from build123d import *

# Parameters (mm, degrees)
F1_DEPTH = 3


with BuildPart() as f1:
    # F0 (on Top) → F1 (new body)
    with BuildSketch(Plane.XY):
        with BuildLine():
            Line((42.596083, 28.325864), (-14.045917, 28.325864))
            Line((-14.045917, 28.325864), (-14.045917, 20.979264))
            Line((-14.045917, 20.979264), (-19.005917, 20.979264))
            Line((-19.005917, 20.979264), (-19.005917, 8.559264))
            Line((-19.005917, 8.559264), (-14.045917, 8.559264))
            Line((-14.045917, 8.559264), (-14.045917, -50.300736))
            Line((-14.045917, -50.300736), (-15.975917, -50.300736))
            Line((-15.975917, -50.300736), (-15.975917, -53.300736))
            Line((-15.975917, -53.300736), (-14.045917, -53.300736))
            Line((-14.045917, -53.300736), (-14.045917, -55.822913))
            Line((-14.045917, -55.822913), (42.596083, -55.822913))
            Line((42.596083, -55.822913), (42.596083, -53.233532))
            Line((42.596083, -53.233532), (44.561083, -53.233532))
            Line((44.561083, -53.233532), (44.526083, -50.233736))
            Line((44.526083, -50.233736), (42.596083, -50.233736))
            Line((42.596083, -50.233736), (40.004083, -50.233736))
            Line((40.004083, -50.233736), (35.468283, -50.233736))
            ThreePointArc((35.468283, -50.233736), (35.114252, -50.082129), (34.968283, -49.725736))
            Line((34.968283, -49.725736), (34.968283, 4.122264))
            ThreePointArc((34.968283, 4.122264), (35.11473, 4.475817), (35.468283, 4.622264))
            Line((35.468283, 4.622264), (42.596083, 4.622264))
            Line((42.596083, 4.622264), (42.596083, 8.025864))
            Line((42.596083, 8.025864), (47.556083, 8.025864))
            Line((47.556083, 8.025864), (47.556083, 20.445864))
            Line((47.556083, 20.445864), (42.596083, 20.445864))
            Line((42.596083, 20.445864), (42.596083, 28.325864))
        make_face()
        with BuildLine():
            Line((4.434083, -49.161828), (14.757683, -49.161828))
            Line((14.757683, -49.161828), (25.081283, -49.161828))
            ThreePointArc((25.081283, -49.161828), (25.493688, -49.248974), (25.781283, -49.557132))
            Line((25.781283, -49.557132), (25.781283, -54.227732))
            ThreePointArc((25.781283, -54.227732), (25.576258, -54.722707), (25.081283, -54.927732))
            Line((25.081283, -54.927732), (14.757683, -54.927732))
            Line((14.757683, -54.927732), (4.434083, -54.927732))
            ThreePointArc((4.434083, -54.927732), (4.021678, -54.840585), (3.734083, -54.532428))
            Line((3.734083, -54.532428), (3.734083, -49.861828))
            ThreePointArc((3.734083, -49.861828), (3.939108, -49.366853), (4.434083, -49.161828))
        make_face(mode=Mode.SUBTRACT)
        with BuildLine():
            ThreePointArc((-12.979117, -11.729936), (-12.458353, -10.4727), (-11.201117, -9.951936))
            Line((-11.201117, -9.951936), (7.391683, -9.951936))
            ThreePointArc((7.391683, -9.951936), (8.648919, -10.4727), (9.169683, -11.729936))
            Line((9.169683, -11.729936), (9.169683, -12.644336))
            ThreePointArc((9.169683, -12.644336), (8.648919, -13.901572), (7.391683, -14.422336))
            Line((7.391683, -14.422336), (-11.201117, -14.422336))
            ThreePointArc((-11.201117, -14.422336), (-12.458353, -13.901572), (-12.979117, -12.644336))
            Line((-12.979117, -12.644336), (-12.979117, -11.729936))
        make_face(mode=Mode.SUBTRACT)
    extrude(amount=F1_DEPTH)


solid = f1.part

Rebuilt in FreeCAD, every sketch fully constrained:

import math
import FreeCAD as App
import Part
import Sketcher

V = App.Vector
Q = App.Units.Quantity

doc = App.newDocument("Part")
body = doc.addObject("PartDesign::Body", "Body")

sketch1 = doc.addObject("Sketcher::SketchObject", "Sketch")
body.addObject(sketch1)
sketch1.AttachmentSupport = (doc.XY_Plane, [""])
sketch1.MapMode = "FlatFace"
sketch1.addGeometry([
    Part.LineSegment(V(42.6, 28.3, 0), V(-14, 28.3, 0)),
    Part.LineSegment(V(-14, 28.3, 0), V(-14, 21, 0)),
    Part.LineSegment(V(-14, 21, 0), V(-19, 21, 0)),
    Part.LineSegment(V(-19, 21, 0), V(-19, 8.6, 0)),
    Part.LineSegment(V(-19, 8.6, 0), V(-14, 8.6, 0)),
    Part.LineSegment(V(-14, 8.6, 0), V(-14, -50.3, 0)),
    Part.LineSegment(V(-14, -50.3, 0), V(-16, -50.3, 0)),
    Part.LineSegment(V(-16, -50.3, 0), V(-16, -53.3, 0)),
    Part.LineSegment(V(-16, -53.3, 0), V(-14, -53.3, 0)),
    Part.LineSegment(V(-14, -53.3, 0), V(-14, -55.8, 0)),
    Part.LineSegment(V(-14, -55.8, 0), V(42.6, -55.8, 0)),
    Part.LineSegment(V(42.6, -55.8, 0), V(42.6, -53.2, 0)),
    Part.LineSegment(V(42.6, -53.2, 0), V(44.6, -53.2, 0)),
    Part.LineSegment(V(44.6, -53.2, 0), V(44.5, -50.2, 0)),
    Part.LineSegment(V(44.5, -50.2, 0), V(35.5, -50.2, 0)),
    Part.ArcOfCircle(Part.Circle(V(35.5, -49.7, 0), V(0, 0, 1), 0.5), math.radians(-180), math.radians(-91)),
    Part.LineSegment(V(35, -49.7, 0), V(35, 4.1, 0)),
    Part.ArcOfCircle(Part.Circle(V(35.5, 4.1, 0), V(0, 0, 1), 0.5), math.radians(90), math.radians(180)),
    Part.LineSegment(V(35.5, 4.6, 0), V(42.6, 4.6, 0)),
    Part.LineSegment(V(42.6, 4.6, 0), V(42.6, 8, 0)),
    Part.LineSegment(V(42.6, 8, 0), V(47.6, 8, 0)),
    Part.LineSegment(V(47.6, 8, 0), V(47.6, 20.4, 0)),
    Part.LineSegment(V(47.6, 20.4, 0), V(42.6, 20.4, 0)),
    Part.LineSegment(V(42.6, 20.4, 0), V(42.6, 28.3, 0)),
    Part.ArcOfCircle(Part.Circle(V(4.4, -49.9, 0), V(0, 0, 1), 0.7), math.radians(90), math.radians(180)),
    Part.LineSegment(V(4.4, -49.2, 0), V(25.1, -49.2, 0)),
    Part.ArcOfCircle(Part.Circle(V(25.1, -49.9, 0), V(0, 0, 1), 0.7), math.radians(26), math.radians(96)),
    Part.LineSegment(V(25.8, -49.6, 0), V(25.8, -54.2, 0)),
    Part.ArcOfCircle(Part.Circle(V(25.1, -54.2, 0), V(0, 0, 1), 0.7), math.radians(-90), math.radians(0)),
    Part.LineSegment(V(25.1, -54.9, 0), V(4.4, -54.9, 0)),
    Part.ArcOfCircle(Part.Circle(V(4.4, -54.2, 0), V(0, 0, 1), 0.7), math.radians(-154), math.radians(-84)),
    Part.LineSegment(V(3.7, -54.5, 0), V(3.7, -49.9, 0)),
    Part.LineSegment(V(-13, -12.6, 0), V(-13, -11.7, 0)),
    Part.ArcOfCircle(Part.Circle(V(-11.2, -11.7, 0), V(0, 0, 1), 1.8), math.radians(90), math.radians(180)),
    Part.LineSegment(V(-11.2, -10, 0), V(7.4, -10, 0)),
    Part.ArcOfCircle(Part.Circle(V(7.4, -11.7, 0), V(0, 0, 1), 1.8), math.radians(0), math.radians(90)),
    Part.LineSegment(V(9.2, -11.7, 0), V(9.2, -12.6, 0)),
    Part.ArcOfCircle(Part.Circle(V(7.4, -12.6, 0), V(0, 0, 1), 1.8), math.radians(-90), math.radians(0)),
    Part.LineSegment(V(7.4, -14.4, 0), V(-11.2, -14.4, 0)),
    Part.ArcOfCircle(Part.Circle(V(-11.2, -12.6, 0), V(0, 0, 1), 1.8), math.radians(180), math.radians(270)),
], False)
sketch1.addConstraint([
    Sketcher.Constraint("Coincident", 0, 2, 1, 1),
    Sketcher.Constraint("Coincident", 1, 2, 2, 1),
    Sketcher.Constraint("Coincident", 2, 2, 3, 1),
    Sketcher.Constraint("Coincident", 3, 2, 4, 1),
    Sketcher.Constraint("Coincident", 4, 2, 5, 1),
    Sketcher.Constraint("Coincident", 5, 2, 6, 1),
    Sketcher.Constraint("Coincident", 6, 2, 7, 1),
    Sketcher.Constraint("Coincident", 7, 2, 8, 1),
    Sketcher.Constraint("Coincident", 8, 2, 9, 1),
    Sketcher.Constraint("Coincident", 9, 2, 10, 1),
    Sketcher.Constraint("Coincident", 10, 2, 11, 1),
    Sketcher.Constraint("Coincident", 11, 2, 12, 1),
    Sketcher.Constraint("Coincident", 12, 2, 13, 1),
    Sketcher.Constraint("Coincident", 13, 2, 14, 1),
    Sketcher.Constraint("Coincident", 14, 2, 15, 2),
    Sketcher.Constraint("Tangent", 15, 1, 16, 1),
    Sketcher.Constraint("Coincident", 16, 2, 17, 2),
    Sketcher.Constraint("Coincident", 17, 1, 18, 1),
    Sketcher.Constraint("Coincident", 18, 2, 19, 1),
    Sketcher.Constraint("Coincident", 19, 2, 20, 1),
    Sketcher.Constraint("Coincident", 20, 2, 21, 1),
    Sketcher.Constraint("Coincident", 21, 2, 22, 1),
    Sketcher.Constraint("Coincident", 22, 2, 23, 1),
    Sketcher.Constraint("Coincident", 23, 2, 0, 1),
    Sketcher.Constraint("Tangent", 24, 1, 25, 1),
    Sketcher.Constraint("Coincident", 25, 2, 26, 2),
    Sketcher.Constraint("Coincident", 26, 1, 27, 1),
    Sketcher.Constraint("Tangent", 27, 2, 28, 2),
    Sketcher.Constraint("Tangent", 28, 1, 29, 1),
    Sketcher.Constraint("Coincident", 29, 2, 30, 2),
    Sketcher.Constraint("Coincident", 30, 1, 31, 1),
    Sketcher.Constraint("Tangent", 31, 2, 24, 2),
    Sketcher.Constraint("Tangent", 32, 2, 33, 2),
    Sketcher.Constraint("Tangent", 33, 1, 34, 1),
    Sketcher.Constraint("Tangent", 34, 2, 35, 2),
    Sketcher.Constraint("Tangent", 35, 1, 36, 1),
    Sketcher.Constraint("Tangent", 36, 2, 37, 2),
    Sketcher.Constraint("Tangent", 37, 1, 38, 1),
    Sketcher.Constraint("Tangent", 38, 2, 39, 2),
    Sketcher.Constraint("Tangent", 39, 1, 32, 1),
    Sketcher.Constraint("Horizontal", 0),
    Sketcher.Constraint("Vertical", 1),
    Sketcher.Constraint("Horizontal", 2),
    Sketcher.Constraint("Vertical", 3),
    Sketcher.Constraint("Horizontal", 4),
    Sketcher.Constraint("Vertical", 5),
    Sketcher.Constraint("Horizontal", 6),
    Sketcher.Constraint("Vertical", 7),
    Sketcher.Constraint("Horizontal", 8),
    Sketcher.Constraint("Vertical", 9),
    Sketcher.Constraint("Horizontal", 10),
    Sketcher.Constraint("Vertical", 11),
    Sketcher.Constraint("Horizontal", 12),
    Sketcher.Constraint("Horizontal", 14),
    Sketcher.Constraint("Vertical", 16),
    Sketcher.Constraint("Horizontal", 18),
    Sketcher.Constraint("Vertical", 19),
    Sketcher.Constraint("Horizontal", 20),
    Sketcher.Constraint("Vertical", 21),
    Sketcher.Constraint("Horizontal", 22),
    Sketcher.Constraint("Vertical", 23),
    Sketcher.Constraint("Horizontal", 25),
    Sketcher.Constraint("Vertical", 27),
    Sketcher.Constraint("Horizontal", 29),
    Sketcher.Constraint("Vertical", 31),
    Sketcher.Constraint("Vertical", 32),
    Sketcher.Constraint("Horizontal", 34),
    Sketcher.Constraint("Vertical", 36),
    Sketcher.Constraint("Horizontal", 38),
    Sketcher.Constraint("Equal", 24, 26),
    Sketcher.Constraint("Equal", 26, 28),
    Sketcher.Constraint("Equal", 33, 35),
    Sketcher.Constraint("Equal", 35, 37),
    Sketcher.Constraint("Equal", 37, 39),
    Sketcher.Constraint("Horizontal", 17, 3, 16, 2),
    Sketcher.Constraint("Vertical", 1, 2, 4, 2),
    Sketcher.Constraint("Vertical", 5, 2, 8, 2),
    Sketcher.Constraint("Vertical", 17, 3, 14, 2),
    Sketcher.Constraint("Vertical", 14, 2, 17, 1),
    Sketcher.Constraint("Vertical", 11, 2, 18, 2),
    Sketcher.Constraint("Vertical", 19, 2, 22, 2),
    Sketcher.Constraint("Vertical", 28, 3, 25, 2),
    Sketcher.Constraint("Vertical", 24, 1, 29, 2),
    Sketcher.Constraint("Equal", 4, 20),
    Sketcher.Constraint("Equal", 3, 21),
    Sketcher.Constraint("Equal", 27, 31),
    Sketcher.Constraint("Radius", 33, Q("0.07 in")),
    Sketcher.Constraint("DistanceX", 0, 2, 0, 1, Q("2.23 in")),
    Sketcher.Constraint("DistanceY", 16, 1, 16, 2, Q("2.12 in")),
    Sketcher.Constraint("DistanceX", 8, 2, 30, 1, Q("0.7 in")),
    Sketcher.Constraint("DistanceX", 34, 1, 34, 2, Q("0.732 in")),
    Sketcher.Constraint("DistanceY", 19, 1, 19, 2, Q("0.134 in")),
    Sketcher.Constraint("DistanceY", 32, 1, 32, 2, Q("0.036 in")),
    Sketcher.Constraint("Radius", 17, 0.500001),
    Sketcher.Constraint("Radius", 24, 0.699999),
    Sketcher.Constraint("Radius", 30, 0.700001),
    Sketcher.Constraint("DistanceY", 13, 2, 15, 3, Q("0.02 in")),
    Sketcher.Constraint("DistanceX", 0, 2, 33, 3, Q("0.112 in")),
    Sketcher.Constraint("DistanceY", 33, 3, 0, 2, Q("1.577 in")),
    Sketcher.Constraint("DistanceX", 2, 2, 2, 1, 4.96),
    Sketcher.Constraint("DistanceX", 6, 2, 6, 1, 1.93),
    Sketcher.Constraint("DistanceX", 12, 1, 12, 2, 1.965),
    Sketcher.Constraint("DistanceX", 14, 2, 14, 1, 9.0578),
    Sketcher.Constraint("DistanceX", 18, 1, 18, 2, 7.1278),
    Sketcher.Constraint("DistanceX", 25, 1, 25, 2, 20.6472),
    Sketcher.Constraint("DistanceY", 1, 2, 1, 1, 7.3466),
    Sketcher.Constraint("DistanceY", 3, 2, 3, 1, 12.42),
    Sketcher.Constraint("DistanceY", 5, 2, 5, 1, 58.86),
    Sketcher.Constraint("DistanceY", 7, 2, 7, 1, 3.0),
    Sketcher.Constraint("DistanceY", 23, 1, 23, 2, 7.88),
    Sketcher.Constraint("DistanceY", 27, 2, 27, 1, 4.6706),
    Sketcher.Constraint("Distance", 13, 3.0),
    Sketcher.Constraint("DistanceY", 11, 1, 11, 2, 2.589381),
    Sketcher.Constraint("DistanceY", 28, 3, 11, 2, 0.994201),
    Sketcher.Constraint("DistanceX", -1, 1, 26, 3, 25.149479),
    Sketcher.Constraint("DistanceX", -1, 1, 30, 3, 4.365889),
    Sketcher.Constraint("DistanceY", 30, 3, -1, 1, 54.23106),
])
pad1 = doc.addObject("PartDesign::Pad", "Pad")
body.addObject(pad1)
pad1.Profile = sketch1
pad1.Length = 3

doc.recompute()
